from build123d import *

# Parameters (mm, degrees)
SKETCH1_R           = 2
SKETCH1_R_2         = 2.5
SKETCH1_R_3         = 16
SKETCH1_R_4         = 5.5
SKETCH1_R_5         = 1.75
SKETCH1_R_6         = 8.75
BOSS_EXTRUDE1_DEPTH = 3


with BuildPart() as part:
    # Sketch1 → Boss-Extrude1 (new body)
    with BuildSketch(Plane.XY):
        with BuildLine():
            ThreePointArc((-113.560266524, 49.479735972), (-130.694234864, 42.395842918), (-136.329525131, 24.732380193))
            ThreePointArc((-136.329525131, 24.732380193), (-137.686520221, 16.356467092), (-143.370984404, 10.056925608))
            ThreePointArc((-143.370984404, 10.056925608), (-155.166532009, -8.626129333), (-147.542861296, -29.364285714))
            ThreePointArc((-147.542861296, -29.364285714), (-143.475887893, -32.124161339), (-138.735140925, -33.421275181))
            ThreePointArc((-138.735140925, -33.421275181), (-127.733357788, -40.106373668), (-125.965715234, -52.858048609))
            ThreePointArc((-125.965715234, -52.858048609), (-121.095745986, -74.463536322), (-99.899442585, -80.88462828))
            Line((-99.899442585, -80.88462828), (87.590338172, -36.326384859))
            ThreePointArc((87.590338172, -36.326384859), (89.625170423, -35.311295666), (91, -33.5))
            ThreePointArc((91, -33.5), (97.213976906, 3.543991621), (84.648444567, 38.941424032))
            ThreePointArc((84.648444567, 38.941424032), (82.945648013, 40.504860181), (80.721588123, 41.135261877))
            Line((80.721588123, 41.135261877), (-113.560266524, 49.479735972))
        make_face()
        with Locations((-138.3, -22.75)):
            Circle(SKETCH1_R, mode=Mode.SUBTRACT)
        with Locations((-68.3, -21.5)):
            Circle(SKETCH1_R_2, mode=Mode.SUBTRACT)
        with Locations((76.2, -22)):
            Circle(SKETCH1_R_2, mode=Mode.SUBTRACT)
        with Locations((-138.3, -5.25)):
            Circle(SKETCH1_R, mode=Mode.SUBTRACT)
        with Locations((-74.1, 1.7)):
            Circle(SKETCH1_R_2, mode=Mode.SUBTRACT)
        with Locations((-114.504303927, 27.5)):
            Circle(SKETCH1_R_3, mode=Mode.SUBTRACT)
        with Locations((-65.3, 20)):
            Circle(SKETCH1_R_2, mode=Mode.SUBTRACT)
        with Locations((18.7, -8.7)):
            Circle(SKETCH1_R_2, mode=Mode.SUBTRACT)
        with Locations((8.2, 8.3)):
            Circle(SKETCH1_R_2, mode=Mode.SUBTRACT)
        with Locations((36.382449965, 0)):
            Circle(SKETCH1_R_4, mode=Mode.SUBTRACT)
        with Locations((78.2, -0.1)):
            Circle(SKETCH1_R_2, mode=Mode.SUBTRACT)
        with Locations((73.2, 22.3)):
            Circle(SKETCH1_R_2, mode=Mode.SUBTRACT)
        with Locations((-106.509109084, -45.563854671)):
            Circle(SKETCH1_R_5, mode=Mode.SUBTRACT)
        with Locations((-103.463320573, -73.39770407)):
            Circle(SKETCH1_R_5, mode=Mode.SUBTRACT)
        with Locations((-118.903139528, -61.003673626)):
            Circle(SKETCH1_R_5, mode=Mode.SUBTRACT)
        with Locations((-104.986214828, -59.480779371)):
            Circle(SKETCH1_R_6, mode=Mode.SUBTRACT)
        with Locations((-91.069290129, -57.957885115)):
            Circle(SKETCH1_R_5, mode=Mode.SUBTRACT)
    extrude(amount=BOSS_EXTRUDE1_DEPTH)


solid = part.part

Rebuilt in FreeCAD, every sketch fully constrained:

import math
import FreeCAD as App
import Part
import Sketcher
Q = App.Units.Quantity

doc = App.newDocument("Part")
body = doc.addObject("PartDesign::Body", "Body")

# Sketch on XY plane
sketch1 = doc.addObject("Sketcher::SketchObject", "Sketch")
body.addObject(sketch1)
sketch1.AttachmentSupport = (doc.XY_Plane, [""])
sketch1.MapMode = "FlatFace"
sketch1.addGeometry(Part.ArcOfCircle(Part.Circle(App.Vector(-114.504304, 27.5, 0), App.Vector(0, 0, 1), 22), math.radians(87.540638), math.radians(187.227009)), False)
sketch1.addGeometry(Part.ArcOfCircle(Part.Circle(App.Vector(-151.210358, 22.845367, 0), App.Vector(0, 0, 1), 15), math.radians(-58.491511), math.radians(7.227009)), False)
sketch1.addGeometry(Part.ArcOfCircle(Part.Circle(App.Vector(-130.305362, -11.257143, 0), App.Vector(0, 0, 1), 25), math.radians(121.508489), math.radians(226.40946)), False)
sketch1.addGeometry(Part.ArcOfCircle(Part.Circle(App.Vector(-137.200362, -18.5, 0), App.Vector(0, 0, 1), 15), math.radians(-133.59054), math.radians(-95.872702)), False)
sketch1.addGeometry(Part.ArcOfCircle(Part.Circle(App.Vector(-140.26992, -48.34255, 0), App.Vector(0, 0, 1), 15), math.radians(-17.519671), math.radians(84.127298)), False)
sketch1.addGeometry(Part.ArcOfCircle(Part.Circle(App.Vector(-104.986215, -59.480779, 0), App.Vector(0, 0, 1), 22), math.radians(162.480329), math.radians(283.368728)), False)
sketch1.addGeometry(Part.LineSegment(App.Vector(-99.899443, -80.884628, 0), App.Vector(87.590338, -36.326385, 0)), False)
sketch1.addGeometry(Part.ArcOfCircle(Part.Circle(App.Vector(86.434253, -31.461874, 0), App.Vector(0, 0, 1), 5), math.radians(-76.631271), math.radians(-24.055744)), False)
sketch1.addGeometry(Part.ArcOfCircle(Part.Circle(App.Vector(22.658915, -2.992884, 0), App.Vector(0, 0, 1), 74.841085), math.radians(-24.055744), math.radians(34.077332)), False)
sketch1.addGeometry(Part.ArcOfCircle(Part.Circle(App.Vector(80.507034, 36.139867, 0), App.Vector(0, 0, 1), 5), math.radians(34.077332), math.radians(87.540638)), False)
sketch1.addGeometry(Part.LineSegment(App.Vector(80.721588, 41.135262, 0), App.Vector(-113.560267, 49.479736, 0)), False)
sketch1.addGeometry(Part.Circle(App.Vector(-118.90314, -61.003674, 0), App.Vector(0, 0, 1), 1.75), False)
sketch1.addGeometry(Part.Circle(App.Vector(-103.463321, -73.397704, 0), App.Vector(0, 0, 1), 1.75), False)
sketch1.addGeometry(Part.Circle(App.Vector(-104.986215, -59.480779, 0), App.Vector(0, 0, 1), 8.75), False)
sketch1.addGeometry(Part.Circle(App.Vector(-91.06929, -57.957885, 0), App.Vector(0, 0, 1), 1.75), False)
sketch1.addGeometry(Part.Circle(App.Vector(-106.509109, -45.563855, 0), App.Vector(0, 0, 1), 1.75), False)
sketch1.addGeometry(Part.Circle(App.Vector(-138.3, -22.75, 0), App.Vector(0, 0, 1), 2), False)
sketch1.addGeometry(Part.Circle(App.Vector(-68.3, -21.5, 0), App.Vector(0, 0, 1), 2.5), False)
sketch1.addGeometry(Part.Circle(App.Vector(76.2, -22, 0), App.Vector(0, 0, 1), 2.5), False)
sketch1.addGeometry(Part.Circle(App.Vector(-138.3, -5.25, 0), App.Vector(0, 0, 1), 2), False)
sketch1.addGeometry(Part.Circle(App.Vector(-74.1, 1.7, 0), App.Vector(0, 0, 1), 2.5), False)
sketch1.addGeometry(Part.Circle(App.Vector(-114.504304, 27.5, 0), App.Vector(0, 0, 1), 16), False)
sketch1.addGeometry(Part.Circle(App.Vector(-65.3, 20, 0), App.Vector(0, 0, 1), 2.5), False)
sketch1.addGeometry(Part.Circle(App.Vector(18.7, -8.7, 0), App.Vector(0, 0, 1), 2.5), False)
sketch1.addGeometry(Part.Circle(App.Vector(8.2, 8.3, 0), App.Vector(0, 0, 1), 2.5), False)
sketch1.addGeometry(Part.Circle(App.Vector(36.38245, 0, 0), App.Vector(0, 0, 1), 5.5), False)
sketch1.addGeometry(Part.Circle(App.Vector(78.2, -0.1, 0), App.Vector(0, 0, 1), 2.5), False)
sketch1.addGeometry(Part.Circle(App.Vector(73.2, 22.3, 0), App.Vector(0, 0, 1), 2.5), False)
sketch1.addConstraint(Sketcher.Constraint("Tangent", 0, 2, 1, 2))
sketch1.addConstraint(Sketcher.Constraint("Tangent", 1, 1, 2, 1))
sketch1.addConstraint(Sketcher.Constraint("Tangent", 2, 2, 3, 1))
sketch1.addConstraint(Sketcher.Constraint("Tangent", 3, 2, 4, 2))
sketch1.addConstraint(Sketcher.Constraint("Tangent", 4, 1, 5, 1))
sketch1.addConstraint(Sketcher.Constraint("Tangent", 5, 2, 6, 1))
sketch1.addConstraint(Sketcher.Constraint("Tangent", 6, 2, 7, 1))
sketch1.addConstraint(Sketcher.Constraint("Tangent", 7, 2, 8, 1))
sketch1.addConstraint(Sketcher.Constraint("Tangent", 8, 2, 9, 1))
sketch1.addConstraint(Sketcher.Constraint("Tangent", 9, 2, 10, 1))
sketch1.addConstraint(Sketcher.Constraint("Tangent", 10, 2, 0, 1))
sketch1.addConstraint(Sketcher.Constraint("Coincident", 13, 3, 5, 3))
sketch1.addConstraint(Sketcher.Constraint("Coincident", 21, 3, 0, 3))
sketch1.addConstraint(Sketcher.Constraint("Equal", 1, 3))
sketch1.addConstraint(Sketcher.Constraint("Equal", 3, 4))
sketch1.addConstraint(Sketcher.Constraint("Equal", 0, 5))
sketch1.addConstraint(Sketcher.Constraint("Equal", 7, 9))
sketch1.addConstraint(Sketcher.Constraint("Equal", 11, 12))
sketch1.addConstraint(Sketcher.Constraint("Equal", 12, 14))
sketch1.addConstraint(Sketcher.Constraint("Equal", 14, 15))
sketch1.addConstraint(Sketcher.Constraint("Equal", 17, 18))
sketch1.addConstraint(Sketcher.Constraint("Equal", 16, 19))
sketch1.addConstraint(Sketcher.Constraint("Equal", 18, 20))
sketch1.addConstraint(Sketcher.Constraint("Equal", 20, 22))
sketch1.addConstraint(Sketcher.Constraint("Equal", 22, 23))
sketch1.addConstraint(Sketcher.Constraint("Equal", 23, 24))
sketch1.addConstraint(Sketcher.Constraint("Equal", 24, 26))
sketch1.addConstraint(Sketcher.Constraint("Equal", 26, 27))
sketch1.addConstraint(Sketcher.Constraint("PointOnObject", 25, 3, -1))
sketch1.addConstraint(Sketcher.Constraint("Vertical", 16, 3, 19, 3))
sketch1.addConstraint(Sketcher.Constraint("Diameter", 16, Q("4 mm")))
sketch1.addConstraint(Sketcher.Constraint("Diameter", 17, Q("5 mm")))
sketch1.addConstraint(Sketcher.Constraint("Diameter", 21, Q("32 mm")))
sketch1.addConstraint(Sketcher.Constraint("Diameter", 25, Q("11 mm")))
sketch1.addConstraint(Sketcher.Constraint("Radius", 0, Q("22 mm")))
sketch1.addConstraint(Sketcher.Constraint("Radius", 1, Q("15 mm")))
sketch1.addConstraint(Sketcher.Constraint("Radius", 2, Q("25 mm")))
sketch1.addConstraint(Sketcher.Constraint("Radius", 7, Q("5 mm")))
sketch1.addConstraint(Sketcher.Constraint("Diameter", 11, Q("3.5 mm")))
sketch1.addConstraint(Sketcher.Constraint("Diameter", 13, Q("17.5 mm")))
sketch1.addConstraint(Sketcher.Constraint("DistanceY", 18, 3, -1, 1, Q("22 mm")))
sketch1.addConstraint(Sketcher.Constraint("DistanceY", -1, 1, 22, 3, Q("20 mm")))
sketch1.addConstraint(Sketcher.Constraint("DistanceX", -1, 1, 7, 2, Q("91 mm")))
sketch1.addConstraint(Sketcher.Constraint("DistanceY", 3, 3, 0, 3, Q("46 mm")))
sketch1.addConstraint(Sketcher.Constraint("DistanceX", 17, 3, 22, 3, Q("3 mm")))
sketch1.addConstraint(Sketcher.Constraint("DistanceX", 17, 3, 23, 3, Q("87 mm")))
sketch1.addConstraint(Sketcher.Constraint("DistanceY", 23, 3, 24, 3, Q("17 mm")))
sketch1.addConstraint(Sketcher.Constraint("DistanceX", 24, 3, 18, 3, Q("68 mm")))
sketch1.addConstraint(Sketcher.Constraint("DistanceX", 18, 3, 26, 3, Q("2 mm")))
sketch1.addConstraint(Sketcher.Constraint("DistanceX", 27, 3, 26, 3, Q("5 mm")))
sketch1.addConstraint(Sketcher.Constraint("DistanceY", -1, 1, 0, 3, Q("27.5 mm")))
sketch1.addConstraint(Sketcher.Constraint("DistanceX", 16, 3, -1, 1, Q("138.3 mm")))
sketch1.addConstraint(Sketcher.Constraint("DistanceX", 17, 3, -1, 1, Q("68.3 mm")))
sketch1.addConstraint(Sketcher.Constraint("DistanceY", 17, 3, -1, 1, Q("21.5 mm")))
sketch1.addConstraint(Sketcher.Constraint("DistanceX", -1, 1, 18, 3, Q("76.2 mm")))
sketch1.addConstraint(Sketcher.Constraint("DistanceX", 20, 3, -1, 1, Q("74.1 mm")))
sketch1.addConstraint(Sketcher.Constraint("DistanceY", -1, 1, 20, 3, Q("1.7 mm")))
sketch1.addConstraint(Sketcher.Constraint("DistanceY", 23, 3, -1, 1, Q("8.7 mm")))
sketch1.addConstraint(Sketcher.Constraint("DistanceY", 26, 3, -1, 1, Q("0.1 mm")))
sketch1.addConstraint(Sketcher.Constraint("DistanceY", -1, 1, 27, 3, Q("22.3 mm")))
sketch1.addConstraint(Sketcher.Constraint("DistanceY", 7, 2, -1, 1, Q("33.5 mm")))
sketch1.addConstraint(Sketcher.Constraint("DistanceY", 16, 3, 19, 3, Q("17.5 mm")))
sketch1.addConstraint(Sketcher.Constraint("DistanceY", 16, 3, -1, 1, Q("22.75 mm")))
sketch1.addConstraint(Sketcher.Constraint("Radius", 8, Q("74.841085 mm")))
sketch1.addConstraint(Sketcher.Constraint("DistanceX", 3, 3, 2, 3, Q("6.895 mm")))
sketch1.addConstraint(Sketcher.Constraint("DistanceX", 4, 3, 12, 3, Q("36.806599 mm")))
sketch1.addConstraint(Sketcher.Constraint("DistanceY", 4, 1, 4, 3, Q("4.515498 mm")))
sketch1.addConstraint(Sketcher.Constraint("Distance", 10, Q("194.460971 mm")))
sketch1.addConstraint(Sketcher.Constraint("DistanceX", 3, 3, -1, 1, Q("137.200362 mm")))
sketch1.addConstraint(Sketcher.Constraint("DistanceX", 4, 3, -1, 1, Q("140.26992 mm")))
sketch1.addConstraint(Sketcher.Constraint("DistanceX", 11, 3, -1, 1, Q("118.90314 mm")))
sketch1.addConstraint(Sketcher.Constraint("DistanceX", 14, 3, -1, 1, Q("91.06929 mm")))
sketch1.addConstraint(Sketcher.Constraint("DistanceX", 15, 3, -1, 1, Q("106.509109 mm")))
sketch1.addConstraint(Sketcher.Constraint("DistanceX", -1, 1, 25, 3, Q("36.38245 mm")))
sketch1.addConstraint(Sketcher.Constraint("DistanceY", -1, 1, 0, 2, Q("24.73238 mm")))
sketch1.addConstraint(Sketcher.Constraint("DistanceX", -1, 1, 6, 2, Q("87.590338 mm")))
sketch1.addConstraint(Sketcher.Constraint("DistanceY", 11, 3, 2, 3, Q("49.746531 mm")))
sketch1.addConstraint(Sketcher.Constraint("DistanceY", 12, 3, 11, 3, Q("12.39403 mm")))
sketch1.addConstraint(Sketcher.Constraint("DistanceY", 12, 3, 14, 3, Q("15.439819 mm")))
sketch1.addConstraint(Sketcher.Constraint("DistanceY", 11, 3, 15, 3, Q("15.439819 mm")))
pad1 = doc.addObject("PartDesign::Pad", "Pad")
body.addObject(pad1)
pad1.Profile = sketch1
pad1.Length = 3

doc.recompute()
